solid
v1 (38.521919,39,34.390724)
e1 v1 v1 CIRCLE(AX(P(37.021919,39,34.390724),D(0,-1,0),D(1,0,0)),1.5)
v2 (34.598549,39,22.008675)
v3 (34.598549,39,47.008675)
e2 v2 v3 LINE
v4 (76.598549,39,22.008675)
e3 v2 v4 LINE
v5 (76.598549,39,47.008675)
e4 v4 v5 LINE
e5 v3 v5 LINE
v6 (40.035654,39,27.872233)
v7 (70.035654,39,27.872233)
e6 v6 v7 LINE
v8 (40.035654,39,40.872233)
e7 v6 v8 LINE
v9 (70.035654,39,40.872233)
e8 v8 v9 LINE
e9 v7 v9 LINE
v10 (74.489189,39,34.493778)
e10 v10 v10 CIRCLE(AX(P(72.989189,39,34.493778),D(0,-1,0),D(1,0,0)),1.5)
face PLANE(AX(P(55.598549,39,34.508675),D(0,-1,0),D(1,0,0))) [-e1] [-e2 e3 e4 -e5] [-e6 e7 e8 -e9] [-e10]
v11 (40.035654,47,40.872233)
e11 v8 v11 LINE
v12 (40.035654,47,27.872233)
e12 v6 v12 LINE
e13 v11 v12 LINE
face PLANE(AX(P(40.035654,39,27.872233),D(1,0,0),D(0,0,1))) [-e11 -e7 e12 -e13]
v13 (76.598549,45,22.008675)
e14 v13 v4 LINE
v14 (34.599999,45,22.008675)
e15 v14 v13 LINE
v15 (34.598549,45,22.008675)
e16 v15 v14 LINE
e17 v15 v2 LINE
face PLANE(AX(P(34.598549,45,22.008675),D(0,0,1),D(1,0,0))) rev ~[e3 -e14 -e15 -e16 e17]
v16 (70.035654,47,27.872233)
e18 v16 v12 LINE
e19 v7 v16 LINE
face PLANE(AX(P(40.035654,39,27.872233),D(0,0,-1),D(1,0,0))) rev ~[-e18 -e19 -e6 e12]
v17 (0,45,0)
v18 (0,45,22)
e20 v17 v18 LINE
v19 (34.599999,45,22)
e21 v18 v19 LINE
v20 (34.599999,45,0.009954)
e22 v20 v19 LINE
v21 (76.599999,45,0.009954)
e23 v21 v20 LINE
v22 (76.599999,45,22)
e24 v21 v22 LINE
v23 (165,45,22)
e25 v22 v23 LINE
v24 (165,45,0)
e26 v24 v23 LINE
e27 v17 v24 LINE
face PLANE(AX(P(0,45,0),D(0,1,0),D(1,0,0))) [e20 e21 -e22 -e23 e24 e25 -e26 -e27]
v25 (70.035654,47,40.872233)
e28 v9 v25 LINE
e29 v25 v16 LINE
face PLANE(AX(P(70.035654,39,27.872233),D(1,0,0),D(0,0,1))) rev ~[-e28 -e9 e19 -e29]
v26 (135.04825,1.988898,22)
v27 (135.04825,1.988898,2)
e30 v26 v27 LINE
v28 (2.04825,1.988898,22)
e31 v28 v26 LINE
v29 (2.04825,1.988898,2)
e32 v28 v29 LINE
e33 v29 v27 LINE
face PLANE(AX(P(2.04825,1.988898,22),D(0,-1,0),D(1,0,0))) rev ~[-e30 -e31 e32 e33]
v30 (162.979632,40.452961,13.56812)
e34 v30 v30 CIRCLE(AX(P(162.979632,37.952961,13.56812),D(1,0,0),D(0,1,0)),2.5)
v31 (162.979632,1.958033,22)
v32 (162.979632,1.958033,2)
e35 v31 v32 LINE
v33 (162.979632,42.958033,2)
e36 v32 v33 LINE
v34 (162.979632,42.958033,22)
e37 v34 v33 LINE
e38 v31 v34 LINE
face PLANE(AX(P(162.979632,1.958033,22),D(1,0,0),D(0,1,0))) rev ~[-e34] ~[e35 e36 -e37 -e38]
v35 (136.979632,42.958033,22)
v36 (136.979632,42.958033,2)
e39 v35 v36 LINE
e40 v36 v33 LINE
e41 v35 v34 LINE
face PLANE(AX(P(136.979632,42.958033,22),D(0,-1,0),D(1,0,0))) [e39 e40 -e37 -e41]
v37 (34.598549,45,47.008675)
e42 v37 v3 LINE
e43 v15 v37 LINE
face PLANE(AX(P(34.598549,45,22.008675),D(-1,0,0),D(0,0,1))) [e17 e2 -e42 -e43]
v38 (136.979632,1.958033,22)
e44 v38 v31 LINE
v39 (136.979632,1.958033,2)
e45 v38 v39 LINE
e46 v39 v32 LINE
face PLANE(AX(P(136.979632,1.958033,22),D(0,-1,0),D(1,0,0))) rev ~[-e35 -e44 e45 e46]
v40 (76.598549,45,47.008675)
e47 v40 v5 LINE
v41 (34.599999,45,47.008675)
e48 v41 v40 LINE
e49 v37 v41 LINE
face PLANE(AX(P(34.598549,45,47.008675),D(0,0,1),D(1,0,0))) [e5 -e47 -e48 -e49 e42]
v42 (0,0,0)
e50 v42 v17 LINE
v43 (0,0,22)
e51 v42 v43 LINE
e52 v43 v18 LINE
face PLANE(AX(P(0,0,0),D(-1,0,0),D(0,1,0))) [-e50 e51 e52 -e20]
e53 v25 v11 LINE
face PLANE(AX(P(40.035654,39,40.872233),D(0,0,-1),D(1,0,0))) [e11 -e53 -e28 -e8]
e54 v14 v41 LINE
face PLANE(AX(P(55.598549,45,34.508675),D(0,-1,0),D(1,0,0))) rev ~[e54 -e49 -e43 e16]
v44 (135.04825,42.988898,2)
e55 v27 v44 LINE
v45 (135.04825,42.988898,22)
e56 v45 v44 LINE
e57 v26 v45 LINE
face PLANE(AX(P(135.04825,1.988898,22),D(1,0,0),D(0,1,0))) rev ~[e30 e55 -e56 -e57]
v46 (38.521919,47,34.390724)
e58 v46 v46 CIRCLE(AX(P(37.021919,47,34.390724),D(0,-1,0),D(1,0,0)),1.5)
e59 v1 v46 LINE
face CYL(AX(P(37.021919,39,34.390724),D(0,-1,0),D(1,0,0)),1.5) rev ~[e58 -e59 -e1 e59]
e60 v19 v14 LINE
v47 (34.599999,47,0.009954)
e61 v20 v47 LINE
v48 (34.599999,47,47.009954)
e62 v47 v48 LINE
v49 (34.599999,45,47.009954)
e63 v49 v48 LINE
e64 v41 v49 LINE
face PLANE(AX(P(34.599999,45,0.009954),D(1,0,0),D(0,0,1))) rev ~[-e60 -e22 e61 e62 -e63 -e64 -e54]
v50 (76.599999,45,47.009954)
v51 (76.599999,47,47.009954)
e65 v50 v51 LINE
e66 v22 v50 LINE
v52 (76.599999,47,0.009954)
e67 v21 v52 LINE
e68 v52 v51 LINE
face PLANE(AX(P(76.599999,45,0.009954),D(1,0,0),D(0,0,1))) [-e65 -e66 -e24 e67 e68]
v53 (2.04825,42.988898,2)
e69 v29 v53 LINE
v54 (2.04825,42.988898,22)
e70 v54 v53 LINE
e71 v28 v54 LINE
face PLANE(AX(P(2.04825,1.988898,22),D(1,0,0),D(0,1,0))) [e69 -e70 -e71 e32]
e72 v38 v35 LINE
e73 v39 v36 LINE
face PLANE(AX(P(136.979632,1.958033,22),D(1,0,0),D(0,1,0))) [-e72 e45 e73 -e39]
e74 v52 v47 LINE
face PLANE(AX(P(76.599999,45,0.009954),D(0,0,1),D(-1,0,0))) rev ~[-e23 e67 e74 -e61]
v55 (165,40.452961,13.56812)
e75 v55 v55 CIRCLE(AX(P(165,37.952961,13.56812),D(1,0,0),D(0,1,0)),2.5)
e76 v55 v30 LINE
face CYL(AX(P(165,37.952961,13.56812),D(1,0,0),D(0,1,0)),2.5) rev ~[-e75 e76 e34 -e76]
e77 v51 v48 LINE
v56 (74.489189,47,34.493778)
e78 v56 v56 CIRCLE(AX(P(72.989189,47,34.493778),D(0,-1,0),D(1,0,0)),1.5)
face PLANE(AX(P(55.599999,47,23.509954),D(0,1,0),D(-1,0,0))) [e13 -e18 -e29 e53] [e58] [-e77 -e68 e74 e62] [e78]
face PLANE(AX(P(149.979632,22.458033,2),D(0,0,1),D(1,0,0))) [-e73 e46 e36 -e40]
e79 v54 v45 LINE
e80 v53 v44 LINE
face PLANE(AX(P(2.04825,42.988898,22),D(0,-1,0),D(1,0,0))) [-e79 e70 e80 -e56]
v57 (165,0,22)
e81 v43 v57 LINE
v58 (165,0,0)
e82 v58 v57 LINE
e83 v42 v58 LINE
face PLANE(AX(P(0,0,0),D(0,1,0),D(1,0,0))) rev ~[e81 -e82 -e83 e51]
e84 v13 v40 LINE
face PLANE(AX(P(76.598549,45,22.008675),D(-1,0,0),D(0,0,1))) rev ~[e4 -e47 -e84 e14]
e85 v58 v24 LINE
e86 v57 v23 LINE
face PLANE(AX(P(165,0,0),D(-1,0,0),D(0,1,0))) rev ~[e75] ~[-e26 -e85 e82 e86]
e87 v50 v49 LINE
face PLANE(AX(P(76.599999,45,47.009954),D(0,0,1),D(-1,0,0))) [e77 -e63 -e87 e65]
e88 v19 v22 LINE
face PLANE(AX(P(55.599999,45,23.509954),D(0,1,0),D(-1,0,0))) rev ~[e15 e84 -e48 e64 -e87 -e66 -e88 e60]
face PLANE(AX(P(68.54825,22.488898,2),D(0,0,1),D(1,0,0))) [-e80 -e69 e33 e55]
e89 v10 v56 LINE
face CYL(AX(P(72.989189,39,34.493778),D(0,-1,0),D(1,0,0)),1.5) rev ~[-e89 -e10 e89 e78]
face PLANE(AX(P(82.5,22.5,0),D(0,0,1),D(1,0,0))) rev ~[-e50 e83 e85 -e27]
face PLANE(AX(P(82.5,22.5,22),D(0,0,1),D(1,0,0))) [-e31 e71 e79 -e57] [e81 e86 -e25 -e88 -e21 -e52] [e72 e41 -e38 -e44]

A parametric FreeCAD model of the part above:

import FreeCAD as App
import Part
import Sketcher
Q = App.Units.Quantity


def add_polygon(sketch, points):
    """Adds a closed chain of lines whose ends are joined by coincident constraints."""
    first, n = sketch.GeometryCount, len(points)
    for a, b in zip(points, points[1:] + points[:1]):
        sketch.addGeometry(Part.LineSegment(App.Vector(*a, 0), App.Vector(*b, 0)), False)
    for i in range(n):
        sketch.addConstraint(Sketcher.Constraint("Coincident", first + i, 2, first + (i + 1) % n, 1))

doc = App.newDocument("Part")
body = doc.addObject("PartDesign::Body", "Body")

# Sketch on XY plane
sketch1 = doc.addObject("Sketcher::SketchObject", "Sketch")
body.addObject(sketch1)
sketch1.AttachmentSupport = (doc.XY_Plane, [""])
sketch1.MapMode = "FlatFace"
add_polygon(sketch1, [(0, 45), (0, 0), (165, 0), (165, 45)])  # lines 0-3
sketch1.addConstraint([
    Sketcher.Constraint("Vertical", 0),
    Sketcher.Constraint("Horizontal", 1),
    Sketcher.Constraint("Vertical", 2),
    Sketcher.Constraint("Horizontal", 3),
    Sketcher.Constraint("Coincident", 0, 2, -1, 1),
    Sketcher.Constraint("DistanceX", 1, 1, 1, 2, Q("165 mm")),
    Sketcher.Constraint("DistanceY", 0, 2, 0, 1, Q("45 mm")),
])
pad1 = doc.addObject("PartDesign::Pad", "Pad")
body.addObject(pad1)
pad1.Profile = sketch1
pad1.Length = 22

# Sketch on XY plane
sketch2 = doc.addObject("Sketcher::SketchObject", "Sketch001")
body.addObject(sketch2)
sketch2.AttachmentSupport = (doc.XY_Plane, [""])
sketch2.MapMode = "FlatFace"
sketch2.AttachmentOffset = App.Placement(App.Vector(0, 0, 22), App.Rotation())
add_polygon(sketch2, [(2.04825, 42.988898), (2.04825, 1.988898), (135.04825, 1.988898), (135.04825, 42.988898)])  # lines 0-3
sketch2.addConstraint([
    Sketcher.Constraint("Vertical", 0),
    Sketcher.Constraint("Horizontal", 1),
    Sketcher.Constraint("Vertical", 2),
    Sketcher.Constraint("Horizontal", 3),
    Sketcher.Constraint("DistanceX", 1, 1, 1, 2, Q("133 mm")),
    Sketcher.Constraint("DistanceY", 0, 2, 0, 1, Q("41 mm")),
    Sketcher.Constraint("DistanceY", -1, 1, 0, 2, Q("1.988898 mm")),
    Sketcher.Constraint("DistanceX", -1, 1, 0, 2, Q("2.04825 mm")),
])
pocket1 = doc.addObject("PartDesign::Pocket", "Pocket")
body.addObject(pocket1)
pocket1.Profile = sketch2
pocket1.Length = 20

# Sketch on XY plane
sketch3 = doc.addObject("Sketcher::SketchObject", "Sketch002")
body.addObject(sketch3)
sketch3.AttachmentSupport = (doc.XY_Plane, [""])
sketch3.MapMode = "FlatFace"
sketch3.AttachmentOffset = App.Placement(App.Vector(0, 0, 22), App.Rotation())
add_polygon(sketch3, [(136.979632, 42.958033), (136.979632, 1.958033), (162.979632, 1.958033), (162.979632, 42.958033)])  # lines 0-3
sketch3.addConstraint([
    Sketcher.Constraint("Vertical", 0),
    Sketcher.Constraint("Horizontal", 1),
    Sketcher.Constraint("Vertical", 2),
    Sketcher.Constraint("Horizontal", 3),
    Sketcher.Constraint("DistanceX", 1, 1, 1, 2, Q("26 mm")),
    Sketcher.Constraint("DistanceY", 0, 2, 0, 1, Q("41 mm")),
    Sketcher.Constraint("DistanceX", -1, 1, 0, 2, Q("136.979632 mm")),
    Sketcher.Constraint("DistanceY", -1, 1, 0, 2, Q("1.958033 mm")),
])
pocket2 = doc.addObject("PartDesign::Pocket", "Pocket001")
body.addObject(pocket2)
pocket2.Profile = sketch3
pocket2.Length = 20

# Sketch on XZ plane
sketch4 = doc.addObject("Sketcher::SketchObject", "Sketch003")
body.addObject(sketch4)
sketch4.AttachmentSupport = (doc.XZ_Plane, [""])
sketch4.MapMode = "FlatFace"
sketch4.AttachmentOffset = App.Placement(App.Vector(0, 0, -45), App.Rotation())
add_polygon(sketch4, [(76.599999, 47.009954), (76.599999, 0.009954), (34.599999, 0.009954), (34.599999, 47.009954)])  # lines 0-3
sketch4.addConstraint([
    Sketcher.Constraint("Vertical", 0),
    Sketcher.Constraint("Horizontal", 1),
    Sketcher.Constraint("Vertical", 2),
    Sketcher.Constraint("Horizontal", 3),
    Sketcher.Constraint("DistanceX", 1, 2, 1, 1, Q("42 mm")),
    Sketcher.Constraint("DistanceY", 0, 2, 0, 1, Q("47 mm")),
    Sketcher.Constraint("DistanceX", -1, 1, 0, 2, Q("76.599999 mm")),
    Sketcher.Constraint("DistanceY", -1, 1, 0, 2, Q("0.009954 mm")),
])
pad2 = doc.addObject("PartDesign::Pad", "Pad001")
body.addObject(pad2)
pad2.Profile = sketch4
pad2.Length = 2
pad2.Reversed = True

# Sketch on XZ plane
sketch5 = doc.addObject("Sketcher::SketchObject", "Sketch004")
body.addObject(sketch5)
sketch5.AttachmentSupport = (doc.XZ_Plane, [""])
sketch5.MapMode = "FlatFace"
sketch5.AttachmentOffset = App.Placement(App.Vector(0, 0, -45), App.Rotation())
add_polygon(sketch5, [(34.598549, 47.008675), (34.598549, 22.008675), (76.598549, 22.008675), (76.598549, 47.008675)])  # lines 0-3
sketch5.addConstraint([
    Sketcher.Constraint("Vertical", 0),
    Sketcher.Constraint("Horizontal", 1),
    Sketcher.Constraint("Vertical", 2),
    Sketcher.Constraint("Horizontal", 3),
    Sketcher.Constraint("DistanceX", 1, 1, 1, 2, Q("42 mm")),
    Sketcher.Constraint("DistanceY", 0, 2, 0, 1, Q("25 mm")),
    Sketcher.Constraint("DistanceX", -1, 1, 0, 2, Q("34.598549 mm")),
    Sketcher.Constraint("DistanceY", -1, 1, 0, 2, Q("22.008675 mm")),
])
pad3 = doc.addObject("PartDesign::Pad", "Pad002")
body.addObject(pad3)
pad3.Profile = sketch5
pad3.Length = 6

# Sketch on XZ plane
sketch6 = doc.addObject("Sketcher::SketchObject", "Sketch005")
body.addObject(sketch6)
sketch6.AttachmentSupport = (doc.XZ_Plane, [""])
sketch6.MapMode = "FlatFace"
sketch6.AttachmentOffset = App.Placement(App.Vector(0, 0, -39), App.Rotation())
add_polygon(sketch6, [(40.035654, 40.872233), (40.035654, 27.872233), (70.035654, 27.872233), (70.035654, 40.872233)])  # lines 0-3
sketch6.addConstraint([
    Sketcher.Constraint("Vertical", 0),
    Sketcher.Constraint("Horizontal", 1),
    Sketcher.Constraint("Vertical", 2),
    Sketcher.Constraint("Horizontal", 3),
    Sketcher.Constraint("DistanceX", 1, 1, 1, 2, Q("30 mm")),
    Sketcher.Constraint("DistanceY", 0, 2, 0, 1, Q("13 mm")),
    Sketcher.Constraint("DistanceX", -1, 1, 0, 2, Q("40.035654 mm")),
    Sketcher.Constraint("DistanceY", -1, 1, 0, 2, Q("27.872233 mm")),
])
pocket3 = doc.addObject("PartDesign::Pocket", "Pocket002")
body.addObject(pocket3)
pocket3.Profile = sketch6
pocket3.Type = "ThroughAll"

# Sketch on XZ plane
sketch7 = doc.addObject("Sketcher::SketchObject", "Sketch006")
body.addObject(sketch7)
sketch7.AttachmentSupport = (doc.XZ_Plane, [""])
sketch7.MapMode = "FlatFace"
sketch7.AttachmentOffset = App.Placement(App.Vector(0, 0, -39), App.Rotation())
sketch7.addGeometry([
    Part.Circle(App.Vector(37.021919, 34.390724, 0), App.Vector(0, 0, 1), 1.5),
    Part.Circle(App.Vector(72.989189, 34.493778, 0), App.Vector(0, 0, 1), 1.5),
], False)
sketch7.addConstraint([
    Sketcher.Constraint("Equal", 0, 1),
    Sketcher.Constraint("Diameter", 0, Q("3 mm")),
    Sketcher.Constraint("DistanceX", -1, 1, 0, 3, Q("37.021919 mm")),
    Sketcher.Constraint("DistanceX", -1, 1, 1, 3, Q("72.989189 mm")),
    Sketcher.Constraint("DistanceY", -1, 1, 0, 3, Q("34.390724 mm")),
    Sketcher.Constraint("DistanceY", -1, 1, 1, 3, Q("34.493778 mm")),
])
pocket4 = doc.addObject("PartDesign::Pocket", "Pocket003")
body.addObject(pocket4)
pocket4.Profile = sketch7
pocket4.Type = "ThroughAll"

# Sketch on YZ plane
sketch8 = doc.addObject("Sketcher::SketchObject", "Sketch007")
body.addObject(sketch8)
sketch8.AttachmentSupport = (doc.YZ_Plane, [""])
sketch8.MapMode = "FlatFace"
sketch8.AttachmentOffset = App.Placement(App.Vector(0, 0, 165), App.Rotation())
sketch8.addGeometry(Part.Circle(App.Vector(37.952961, 13.56812, 0), App.Vector(0, 0, 1), 2.5), False)
sketch8.addConstraint([
    Sketcher.Constraint("Diameter", 0, Q("5 mm")),
    Sketcher.Constraint("DistanceX", -1, 1, 0, 3, Q("37.952961 mm")),
    Sketcher.Constraint("DistanceY", -1, 1, 0, 3, Q("13.56812 mm")),
])
pocket5 = doc.addObject("PartDesign::Pocket", "Pocket004")
body.addObject(pocket5)
pocket5.Profile = sketch8
pocket5.Length = 5

doc.recompute()
